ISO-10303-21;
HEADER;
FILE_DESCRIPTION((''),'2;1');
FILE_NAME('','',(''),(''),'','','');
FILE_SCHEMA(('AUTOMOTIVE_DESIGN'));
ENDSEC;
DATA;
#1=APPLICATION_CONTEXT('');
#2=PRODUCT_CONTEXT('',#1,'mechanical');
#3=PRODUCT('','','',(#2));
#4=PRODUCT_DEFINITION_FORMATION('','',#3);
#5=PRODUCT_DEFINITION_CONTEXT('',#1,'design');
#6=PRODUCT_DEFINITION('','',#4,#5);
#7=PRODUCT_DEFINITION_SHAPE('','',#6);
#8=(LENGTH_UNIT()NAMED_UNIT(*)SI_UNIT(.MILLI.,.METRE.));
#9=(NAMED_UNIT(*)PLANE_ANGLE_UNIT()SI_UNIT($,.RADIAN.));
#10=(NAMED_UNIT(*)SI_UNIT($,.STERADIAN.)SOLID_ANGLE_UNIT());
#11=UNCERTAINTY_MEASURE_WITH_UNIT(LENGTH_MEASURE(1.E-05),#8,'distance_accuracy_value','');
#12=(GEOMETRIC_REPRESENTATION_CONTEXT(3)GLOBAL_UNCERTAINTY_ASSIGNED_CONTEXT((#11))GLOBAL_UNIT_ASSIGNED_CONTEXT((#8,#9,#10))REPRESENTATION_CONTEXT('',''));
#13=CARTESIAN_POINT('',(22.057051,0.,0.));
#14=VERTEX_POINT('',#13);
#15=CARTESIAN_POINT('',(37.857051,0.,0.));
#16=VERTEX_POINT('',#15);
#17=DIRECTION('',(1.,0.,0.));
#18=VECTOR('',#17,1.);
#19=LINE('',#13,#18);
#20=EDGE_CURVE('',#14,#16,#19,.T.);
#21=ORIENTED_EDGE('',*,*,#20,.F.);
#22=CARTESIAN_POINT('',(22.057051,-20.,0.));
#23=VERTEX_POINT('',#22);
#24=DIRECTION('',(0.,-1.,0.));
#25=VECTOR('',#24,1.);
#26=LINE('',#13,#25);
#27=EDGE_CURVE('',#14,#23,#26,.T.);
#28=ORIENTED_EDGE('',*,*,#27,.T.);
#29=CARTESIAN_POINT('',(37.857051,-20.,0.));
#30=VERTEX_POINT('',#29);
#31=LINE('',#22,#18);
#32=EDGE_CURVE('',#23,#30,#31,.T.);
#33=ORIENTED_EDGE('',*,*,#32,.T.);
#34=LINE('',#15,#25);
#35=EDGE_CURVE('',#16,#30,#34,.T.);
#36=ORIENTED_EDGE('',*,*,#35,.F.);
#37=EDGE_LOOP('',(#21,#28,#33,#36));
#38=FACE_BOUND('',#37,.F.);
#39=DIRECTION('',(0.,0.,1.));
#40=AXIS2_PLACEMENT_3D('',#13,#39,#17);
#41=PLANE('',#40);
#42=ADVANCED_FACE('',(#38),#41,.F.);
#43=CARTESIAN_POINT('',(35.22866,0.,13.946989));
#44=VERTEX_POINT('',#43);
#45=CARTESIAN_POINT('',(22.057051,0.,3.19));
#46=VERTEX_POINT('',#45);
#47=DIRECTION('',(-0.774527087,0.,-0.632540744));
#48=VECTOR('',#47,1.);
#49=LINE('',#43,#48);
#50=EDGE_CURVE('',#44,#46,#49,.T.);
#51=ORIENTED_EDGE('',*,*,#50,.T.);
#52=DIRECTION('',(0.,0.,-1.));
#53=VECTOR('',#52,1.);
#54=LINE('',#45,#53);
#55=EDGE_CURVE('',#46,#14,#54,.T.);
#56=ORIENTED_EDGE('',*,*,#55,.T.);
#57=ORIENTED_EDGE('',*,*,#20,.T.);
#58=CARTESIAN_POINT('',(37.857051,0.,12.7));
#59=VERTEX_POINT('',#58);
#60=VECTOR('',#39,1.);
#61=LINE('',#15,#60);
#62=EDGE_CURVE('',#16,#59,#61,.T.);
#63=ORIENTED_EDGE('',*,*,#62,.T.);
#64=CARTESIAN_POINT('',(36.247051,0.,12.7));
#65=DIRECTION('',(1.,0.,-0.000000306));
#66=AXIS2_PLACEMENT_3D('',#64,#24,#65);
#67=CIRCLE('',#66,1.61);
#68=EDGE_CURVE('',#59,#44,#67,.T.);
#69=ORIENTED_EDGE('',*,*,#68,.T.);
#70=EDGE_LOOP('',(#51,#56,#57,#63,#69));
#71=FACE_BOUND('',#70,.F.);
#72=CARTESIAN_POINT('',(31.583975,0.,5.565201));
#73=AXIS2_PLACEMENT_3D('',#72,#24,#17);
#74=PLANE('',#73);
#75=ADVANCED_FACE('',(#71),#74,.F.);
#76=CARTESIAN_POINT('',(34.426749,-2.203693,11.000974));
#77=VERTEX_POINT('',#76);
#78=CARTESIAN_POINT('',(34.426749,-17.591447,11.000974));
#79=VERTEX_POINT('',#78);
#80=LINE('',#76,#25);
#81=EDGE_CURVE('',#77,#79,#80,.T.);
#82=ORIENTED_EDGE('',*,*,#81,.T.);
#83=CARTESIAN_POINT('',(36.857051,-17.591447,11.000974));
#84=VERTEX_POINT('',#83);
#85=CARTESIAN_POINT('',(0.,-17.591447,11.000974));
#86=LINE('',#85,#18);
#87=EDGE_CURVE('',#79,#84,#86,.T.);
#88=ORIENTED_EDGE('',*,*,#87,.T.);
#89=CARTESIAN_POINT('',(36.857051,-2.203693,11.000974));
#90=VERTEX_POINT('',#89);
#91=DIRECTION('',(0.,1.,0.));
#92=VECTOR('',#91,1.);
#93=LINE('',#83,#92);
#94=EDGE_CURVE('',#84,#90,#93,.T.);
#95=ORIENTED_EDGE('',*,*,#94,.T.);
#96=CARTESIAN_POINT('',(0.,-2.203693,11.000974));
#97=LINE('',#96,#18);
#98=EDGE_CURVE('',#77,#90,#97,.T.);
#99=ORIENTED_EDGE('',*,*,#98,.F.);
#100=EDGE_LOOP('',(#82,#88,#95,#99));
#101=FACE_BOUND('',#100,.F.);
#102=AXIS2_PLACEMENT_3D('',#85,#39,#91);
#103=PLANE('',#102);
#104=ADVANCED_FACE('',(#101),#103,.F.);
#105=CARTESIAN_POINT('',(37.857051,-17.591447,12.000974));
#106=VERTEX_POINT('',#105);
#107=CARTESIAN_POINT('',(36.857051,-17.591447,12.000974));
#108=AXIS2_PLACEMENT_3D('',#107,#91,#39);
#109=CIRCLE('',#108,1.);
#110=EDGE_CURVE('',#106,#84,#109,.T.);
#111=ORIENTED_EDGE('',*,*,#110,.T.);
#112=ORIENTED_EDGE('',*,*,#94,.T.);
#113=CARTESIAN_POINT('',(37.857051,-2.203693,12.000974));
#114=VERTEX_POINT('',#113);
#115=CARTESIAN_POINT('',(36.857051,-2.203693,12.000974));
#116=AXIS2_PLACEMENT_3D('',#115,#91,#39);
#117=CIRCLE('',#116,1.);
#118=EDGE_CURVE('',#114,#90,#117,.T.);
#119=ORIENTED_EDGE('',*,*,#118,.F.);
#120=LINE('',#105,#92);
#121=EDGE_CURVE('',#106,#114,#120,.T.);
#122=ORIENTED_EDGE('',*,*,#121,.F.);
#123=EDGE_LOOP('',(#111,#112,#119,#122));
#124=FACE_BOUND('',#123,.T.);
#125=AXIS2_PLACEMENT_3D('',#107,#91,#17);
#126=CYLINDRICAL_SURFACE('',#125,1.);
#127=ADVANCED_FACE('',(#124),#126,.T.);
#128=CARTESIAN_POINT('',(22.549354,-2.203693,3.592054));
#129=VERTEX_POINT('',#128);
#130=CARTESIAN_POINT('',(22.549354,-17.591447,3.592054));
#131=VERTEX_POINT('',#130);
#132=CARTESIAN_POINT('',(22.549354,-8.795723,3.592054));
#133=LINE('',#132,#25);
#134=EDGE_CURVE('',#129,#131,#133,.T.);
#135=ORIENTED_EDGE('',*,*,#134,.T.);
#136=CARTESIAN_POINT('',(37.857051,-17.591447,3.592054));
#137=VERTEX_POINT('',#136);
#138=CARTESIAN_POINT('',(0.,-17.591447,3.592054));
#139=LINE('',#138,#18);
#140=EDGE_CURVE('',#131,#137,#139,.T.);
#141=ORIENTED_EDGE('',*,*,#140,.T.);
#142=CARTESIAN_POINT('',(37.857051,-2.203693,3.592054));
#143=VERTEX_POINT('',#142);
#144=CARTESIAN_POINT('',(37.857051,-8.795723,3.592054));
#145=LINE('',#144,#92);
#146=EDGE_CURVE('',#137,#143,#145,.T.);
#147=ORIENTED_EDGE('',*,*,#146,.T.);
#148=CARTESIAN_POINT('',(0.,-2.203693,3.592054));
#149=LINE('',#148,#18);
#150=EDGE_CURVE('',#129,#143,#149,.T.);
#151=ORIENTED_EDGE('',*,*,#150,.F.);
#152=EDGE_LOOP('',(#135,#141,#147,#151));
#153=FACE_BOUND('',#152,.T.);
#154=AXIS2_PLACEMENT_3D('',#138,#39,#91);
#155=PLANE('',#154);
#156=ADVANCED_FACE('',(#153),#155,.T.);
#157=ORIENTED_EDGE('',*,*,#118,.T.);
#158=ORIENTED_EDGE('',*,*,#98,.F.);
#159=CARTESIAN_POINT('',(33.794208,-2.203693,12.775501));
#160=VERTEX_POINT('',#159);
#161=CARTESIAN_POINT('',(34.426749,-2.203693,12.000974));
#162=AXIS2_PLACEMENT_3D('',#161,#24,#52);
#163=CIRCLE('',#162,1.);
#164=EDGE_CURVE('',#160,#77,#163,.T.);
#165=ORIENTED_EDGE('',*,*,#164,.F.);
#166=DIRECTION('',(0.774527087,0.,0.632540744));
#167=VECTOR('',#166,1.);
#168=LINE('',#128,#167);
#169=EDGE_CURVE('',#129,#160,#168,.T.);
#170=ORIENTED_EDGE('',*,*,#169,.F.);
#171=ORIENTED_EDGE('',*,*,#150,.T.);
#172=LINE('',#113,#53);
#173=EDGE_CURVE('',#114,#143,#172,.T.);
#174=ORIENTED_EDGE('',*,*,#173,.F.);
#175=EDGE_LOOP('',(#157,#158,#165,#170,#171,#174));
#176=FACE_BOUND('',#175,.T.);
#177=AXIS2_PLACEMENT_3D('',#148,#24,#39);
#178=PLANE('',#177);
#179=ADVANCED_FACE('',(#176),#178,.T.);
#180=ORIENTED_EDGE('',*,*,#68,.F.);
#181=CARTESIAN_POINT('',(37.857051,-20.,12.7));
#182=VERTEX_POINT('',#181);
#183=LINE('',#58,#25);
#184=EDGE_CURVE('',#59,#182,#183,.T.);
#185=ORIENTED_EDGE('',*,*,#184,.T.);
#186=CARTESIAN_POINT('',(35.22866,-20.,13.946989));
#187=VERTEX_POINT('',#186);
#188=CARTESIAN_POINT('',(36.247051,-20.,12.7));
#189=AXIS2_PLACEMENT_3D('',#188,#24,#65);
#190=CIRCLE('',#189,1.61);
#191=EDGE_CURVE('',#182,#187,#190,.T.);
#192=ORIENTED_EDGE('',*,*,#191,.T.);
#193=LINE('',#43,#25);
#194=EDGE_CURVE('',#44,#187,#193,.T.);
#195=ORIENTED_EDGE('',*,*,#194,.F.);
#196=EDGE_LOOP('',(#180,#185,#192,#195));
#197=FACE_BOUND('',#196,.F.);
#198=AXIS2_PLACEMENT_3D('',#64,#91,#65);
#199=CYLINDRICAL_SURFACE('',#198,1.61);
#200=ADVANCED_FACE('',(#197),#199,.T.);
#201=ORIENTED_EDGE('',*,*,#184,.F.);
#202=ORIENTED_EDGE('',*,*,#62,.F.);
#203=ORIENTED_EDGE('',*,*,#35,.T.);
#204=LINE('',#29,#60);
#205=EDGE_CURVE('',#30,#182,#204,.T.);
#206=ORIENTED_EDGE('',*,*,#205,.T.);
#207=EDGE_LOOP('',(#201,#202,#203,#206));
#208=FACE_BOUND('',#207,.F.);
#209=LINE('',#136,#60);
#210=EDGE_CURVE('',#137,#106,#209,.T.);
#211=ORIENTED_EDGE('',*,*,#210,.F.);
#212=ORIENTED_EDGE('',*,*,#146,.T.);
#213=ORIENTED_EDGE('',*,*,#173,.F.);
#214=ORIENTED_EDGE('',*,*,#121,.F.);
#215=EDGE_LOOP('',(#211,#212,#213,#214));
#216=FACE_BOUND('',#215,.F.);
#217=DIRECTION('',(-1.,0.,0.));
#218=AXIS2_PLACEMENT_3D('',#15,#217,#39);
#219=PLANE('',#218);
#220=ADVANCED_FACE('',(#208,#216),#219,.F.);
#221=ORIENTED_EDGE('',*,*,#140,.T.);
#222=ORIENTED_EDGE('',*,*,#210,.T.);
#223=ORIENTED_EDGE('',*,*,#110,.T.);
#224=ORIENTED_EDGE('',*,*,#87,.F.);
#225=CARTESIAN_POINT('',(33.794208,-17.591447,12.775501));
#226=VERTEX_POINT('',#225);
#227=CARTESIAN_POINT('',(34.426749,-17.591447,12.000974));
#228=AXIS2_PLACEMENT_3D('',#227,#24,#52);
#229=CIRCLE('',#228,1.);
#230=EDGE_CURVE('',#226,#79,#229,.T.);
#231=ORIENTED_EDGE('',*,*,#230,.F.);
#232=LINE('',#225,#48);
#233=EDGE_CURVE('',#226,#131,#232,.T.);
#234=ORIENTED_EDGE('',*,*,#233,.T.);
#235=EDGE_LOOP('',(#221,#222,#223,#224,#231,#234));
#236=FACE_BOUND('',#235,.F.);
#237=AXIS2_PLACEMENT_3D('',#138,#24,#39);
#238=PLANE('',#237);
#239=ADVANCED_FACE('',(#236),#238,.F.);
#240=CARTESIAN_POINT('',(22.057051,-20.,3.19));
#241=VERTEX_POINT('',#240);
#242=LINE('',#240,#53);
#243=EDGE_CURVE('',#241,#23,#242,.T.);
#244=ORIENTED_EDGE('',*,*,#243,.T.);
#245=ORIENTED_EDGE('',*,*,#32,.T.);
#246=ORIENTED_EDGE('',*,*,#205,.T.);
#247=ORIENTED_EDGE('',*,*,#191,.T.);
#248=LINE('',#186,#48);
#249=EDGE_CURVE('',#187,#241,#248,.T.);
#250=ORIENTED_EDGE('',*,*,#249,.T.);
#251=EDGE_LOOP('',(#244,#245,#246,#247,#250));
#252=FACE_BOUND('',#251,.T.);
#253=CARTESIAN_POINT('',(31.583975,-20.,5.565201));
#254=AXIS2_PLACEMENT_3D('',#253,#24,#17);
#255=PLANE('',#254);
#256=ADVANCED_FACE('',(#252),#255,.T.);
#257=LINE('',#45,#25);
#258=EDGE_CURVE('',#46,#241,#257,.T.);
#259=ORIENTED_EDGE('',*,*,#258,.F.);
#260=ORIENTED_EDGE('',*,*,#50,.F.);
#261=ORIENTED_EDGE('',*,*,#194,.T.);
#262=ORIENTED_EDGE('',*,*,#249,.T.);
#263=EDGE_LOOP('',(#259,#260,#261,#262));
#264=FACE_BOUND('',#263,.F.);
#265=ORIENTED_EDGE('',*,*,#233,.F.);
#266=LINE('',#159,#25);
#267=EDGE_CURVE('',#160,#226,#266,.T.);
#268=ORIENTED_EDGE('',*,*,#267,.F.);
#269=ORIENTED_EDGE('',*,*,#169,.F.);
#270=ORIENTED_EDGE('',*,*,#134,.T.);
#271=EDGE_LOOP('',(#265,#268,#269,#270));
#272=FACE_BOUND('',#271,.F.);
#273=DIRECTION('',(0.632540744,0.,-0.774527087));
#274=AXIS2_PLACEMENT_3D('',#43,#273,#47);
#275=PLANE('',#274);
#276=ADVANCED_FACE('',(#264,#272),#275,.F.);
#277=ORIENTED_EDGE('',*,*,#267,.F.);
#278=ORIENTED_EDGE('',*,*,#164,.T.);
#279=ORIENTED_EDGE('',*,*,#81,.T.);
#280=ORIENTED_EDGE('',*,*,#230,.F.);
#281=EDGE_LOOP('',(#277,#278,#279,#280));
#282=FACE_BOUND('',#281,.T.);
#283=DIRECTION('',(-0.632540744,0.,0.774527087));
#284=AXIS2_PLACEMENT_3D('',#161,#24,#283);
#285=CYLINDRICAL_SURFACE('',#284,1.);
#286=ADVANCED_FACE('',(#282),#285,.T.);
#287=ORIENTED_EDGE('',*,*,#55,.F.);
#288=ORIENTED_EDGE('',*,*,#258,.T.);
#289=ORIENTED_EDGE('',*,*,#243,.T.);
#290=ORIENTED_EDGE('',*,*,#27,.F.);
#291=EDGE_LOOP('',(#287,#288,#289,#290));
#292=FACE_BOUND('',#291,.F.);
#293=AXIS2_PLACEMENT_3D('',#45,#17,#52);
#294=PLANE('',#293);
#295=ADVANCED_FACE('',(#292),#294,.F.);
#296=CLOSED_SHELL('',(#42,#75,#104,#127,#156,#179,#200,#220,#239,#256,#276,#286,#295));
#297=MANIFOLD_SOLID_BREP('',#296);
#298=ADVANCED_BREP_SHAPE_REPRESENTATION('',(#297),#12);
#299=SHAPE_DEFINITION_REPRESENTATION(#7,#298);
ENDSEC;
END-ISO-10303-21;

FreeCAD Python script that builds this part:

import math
import FreeCAD as App
import Part
import Sketcher

V = App.Vector


def edges_at(feature, points):
    """Names of the edges that pass closest to the given points."""
    edges = feature.Shape.Edges
    near = lambda p: min(range(len(edges)), key=lambda i: edges[i].distToShape(Part.Vertex(*p))[0])
    return sorted({f"Edge{near(p) + 1}" for p in points})

doc = App.newDocument("Part")
body = doc.addObject("PartDesign::Body", "Body")

# Sketch on XZ plane
sketch1 = doc.addObject("Sketcher::SketchObject", "Sketch")
body.addObject(sketch1)
sketch1.AttachmentSupport = (doc.XZ_Plane, [""])
sketch1.MapMode = "FlatFace"
sketch1.addGeometry([
    Part.ArcOfCircle(Part.Circle(V(36.2, 12.7, 0), V(0, 0, 1), 1.6), math.radians(129), math.radians(360)),
    Part.ArcOfCircle(Part.Circle(V(36.2, 12.7, 0), V(0, 0, 1), 1.6), math.radians(0), math.radians(129)),
], False)
sketch1.addConstraint([
    Sketcher.Constraint("Tangent", 0, 1, 1, 2),
    Sketcher.Constraint("Coincident", 1, 1, 0, 2),
    Sketcher.Constraint("Horizontal", 0, 3, 1, 1),
    Sketcher.Constraint("Radius", 0, 1.61),
    Sketcher.Constraint("DistanceY", -1, 1, 0, 3, 12.7),
    Sketcher.Constraint("DistanceX", -1, 1, 0, 3, 36.247051),
    Sketcher.Constraint("DistanceX", -1, 1, 0, 1, 35.22866),
])
pad1 = doc.addObject("PartDesign::Pad", "Pad")
body.addObject(pad1)
pad1.Profile = sketch1
pad1.Length = 20

# Sketch on XZ plane
sketch2 = doc.addObject("Sketcher::SketchObject", "Sketch001")
body.addObject(sketch2)
sketch2.AttachmentSupport = (doc.XZ_Plane, [""])
sketch2.MapMode = "FlatFace"
sketch2.addGeometry([
    Part.LineSegment(V(22.1, 3.2, 0), V(22.1, 0, 0)),  # 0
    Part.LineSegment(V(22.1, 0, 0), V(37.9, 0, 0)),  # 1
    Part.LineSegment(V(37.9, 0, 0), V(37.9, 12.7, 0)),  # 2
    Part.ArcOfCircle(Part.Circle(V(36.2, 12.7, 0), V(0, 0, 1), 1.6), math.radians(0), math.radians(129)),  # 3
    Part.LineSegment(V(35.2, 13.9, 0), V(22.1, 3.2, 0)),  # 4
], False)
sketch2.addConstraint([
    Sketcher.Constraint("Coincident", 0, 2, 1, 1),
    Sketcher.Constraint("Coincident", 1, 2, 2, 1),
    Sketcher.Constraint("Tangent", 2, 2, 3, 1),
    Sketcher.Constraint("Tangent", 3, 2, 4, 1),
    Sketcher.Constraint("Coincident", 4, 2, 0, 1),
    Sketcher.Constraint("Vertical", 0),
    Sketcher.Constraint("Horizontal", 1),
    Sketcher.Constraint("Vertical", 2),
    Sketcher.Constraint("PointOnObject", 0, 2, -1),
    Sketcher.Constraint("Radius", 3, 1.61),
    Sketcher.Constraint("DistanceX", 1, 1, 1, 2, 15.8),
    Sketcher.Constraint("DistanceY", 2, 1, 2, 2, 12.7),
    Sketcher.Constraint("DistanceY", 0, 2, 0, 1, 3.19),
    Sketcher.Constraint("DistanceX", -1, 1, 3, 3, 36.247051),
])
pad2 = doc.addObject("PartDesign::Pad", "Pad001")
body.addObject(pad2)
pad2.Profile = sketch2
pad2.Length = 20

# Sketch on YZ plane
sketch3 = doc.addObject("Sketcher::SketchObject", "Sketch002")
body.addObject(sketch3)
sketch3.AttachmentSupport = (doc.YZ_Plane, [""])
sketch3.MapMode = "FlatFace"
sketch3.addGeometry([
    Part.LineSegment(V(-18, 11, 0), V(-18, 4, 0)),
    Part.LineSegment(V(-18, 4, 0), V(-2, 4, 0)),
    Part.LineSegment(V(-2, 4, 0), V(-2, 11, 0)),
    Part.LineSegment(V(-2, 11, 0), V(-18, 11, 0)),
], False)
sketch3.addConstraint([
    Sketcher.Constraint("Coincident", 0, 2, 1, 1),
    Sketcher.Constraint("Coincident", 1, 2, 2, 1),
    Sketcher.Constraint("Coincident", 2, 2, 3, 1),
    Sketcher.Constraint("Coincident", 3, 2, 0, 1),
    Sketcher.Constraint("Vertical", 0),
    Sketcher.Constraint("Horizontal", 1),
    Sketcher.Constraint("Vertical", 2),
    Sketcher.Constraint("Horizontal", 3),
    Sketcher.Constraint("DistanceY", 0, 2, 0, 1, 7.40892),
    Sketcher.Constraint("DistanceX", 1, 1, 1, 2, 15.387754),
    Sketcher.Constraint("DistanceX", 0, 2, -1, 1, 17.591447),
    Sketcher.Constraint("DistanceY", -1, 1, 0, 2, 3.592054),
])
pocket1 = doc.addObject("PartDesign::Pocket", "Pocket")
body.addObject(pocket1)
pocket1.Profile = sketch3
pocket1.Length = 50
pocket1.Reversed = True
doc.recompute()

fillet = doc.addObject("PartDesign::Fillet", "Fillet")
body.addObject(fillet)
fillet.Base = (pocket1, edges_at(pocket1, [(31.621, -9.898, 11.001)]))
fillet.Radius = 1
doc.recompute()

fillet2 = doc.addObject("PartDesign::Fillet", "Fillet001")
body.addObject(fillet2)
fillet2.Base = (fillet, edges_at(fillet, [(37.857, -9.898, 11.001)]))
fillet2.Radius = 1

doc.recompute()
